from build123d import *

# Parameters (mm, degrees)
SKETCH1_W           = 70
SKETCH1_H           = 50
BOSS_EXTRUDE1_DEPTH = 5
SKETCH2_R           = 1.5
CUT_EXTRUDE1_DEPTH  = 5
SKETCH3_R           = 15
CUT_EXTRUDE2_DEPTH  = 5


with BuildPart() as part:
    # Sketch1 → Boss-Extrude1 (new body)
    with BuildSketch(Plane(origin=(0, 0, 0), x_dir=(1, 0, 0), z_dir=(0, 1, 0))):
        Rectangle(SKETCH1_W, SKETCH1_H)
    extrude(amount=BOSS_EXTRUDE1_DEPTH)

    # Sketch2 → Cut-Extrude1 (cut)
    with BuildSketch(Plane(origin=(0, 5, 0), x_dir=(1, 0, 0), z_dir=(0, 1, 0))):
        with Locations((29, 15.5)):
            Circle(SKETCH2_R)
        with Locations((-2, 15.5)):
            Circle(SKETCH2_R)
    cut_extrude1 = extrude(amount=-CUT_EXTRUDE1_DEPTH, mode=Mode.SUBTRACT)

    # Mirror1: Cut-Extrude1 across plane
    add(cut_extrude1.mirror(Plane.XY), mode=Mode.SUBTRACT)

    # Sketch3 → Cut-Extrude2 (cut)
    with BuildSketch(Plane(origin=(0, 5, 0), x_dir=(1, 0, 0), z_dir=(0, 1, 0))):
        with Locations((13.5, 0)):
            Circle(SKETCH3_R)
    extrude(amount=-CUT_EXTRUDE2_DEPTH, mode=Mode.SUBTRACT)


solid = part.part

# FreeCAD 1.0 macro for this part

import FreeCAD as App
import Part
import Sketcher
from FreeCAD import Vector
Q = App.Units.Quantity

doc = App.newDocument("Part")
body = doc.addObject("PartDesign::Body", "Body")

# Sketch on XZ plane
sketch1 = body.newObject("Sketcher::SketchObject", "Sketch")
sketch1.AttachmentSupport = (doc.getObject("XZ_Plane"), [""])
sketch1.MapMode = "FlatFace"
sketch1.addGeometry([
    Part.LineSegment(Vector(-35, -25, 0), Vector(-35, 25, 0)),
    Part.LineSegment(Vector(-35, 25, 0), Vector(35, 25, 0)),
    Part.LineSegment(Vector(35, 25, 0), Vector(35, -25, 0)),
    Part.LineSegment(Vector(35, -25, 0), Vector(-35, -25, 0)),
], False)
sketch1.addConstraint([
    Sketcher.Constraint("Coincident", 0, 2, 1, 1),
    Sketcher.Constraint("Coincident", 1, 2, 2, 1),
    Sketcher.Constraint("Coincident", 2, 2, 3, 1),
    Sketcher.Constraint("Coincident", 3, 2, 0, 1),
    Sketcher.Constraint("Vertical", 0),
    Sketcher.Constraint("Horizontal", 1),
    Sketcher.Constraint("Vertical", 2),
    Sketcher.Constraint("Horizontal", 3),
    Sketcher.Constraint("Symmetric", 0, 2, 2, 2, -1, 1),
    Sketcher.Constraint("DistanceX", 1, 1, 1, 2, Q("70 mm")),
    Sketcher.Constraint("DistanceY", 0, 1, 0, 2, Q("50 mm")),
])
pad1 = body.newObject("PartDesign::Pad", "Pad")
pad1.Profile = sketch1
pad1.Length = 5
pad1.Reversed = True

# Sketch on XZ plane
sketch2 = body.newObject("Sketcher::SketchObject", "Sketch001")
sketch2.AttachmentSupport = (doc.getObject("XZ_Plane"), [""])
sketch2.MapMode = "FlatFace"
sketch2.AttachmentOffset = App.Placement(Vector(0, 0, -5), App.Rotation())
sketch2.addGeometry([
    Part.Circle(Vector(29, -15.5, 0), Vector(0, 0, 1), 1.5),
    Part.Circle(Vector(-2, -15.5, 0), Vector(0, 0, 1), 1.5),
], False)
sketch2.addConstraint([
    Sketcher.Constraint("Equal", 0, 1),
    Sketcher.Constraint("Horizontal", 0, 3, 1, 3),
    Sketcher.Constraint("Diameter", 0, Q("3 mm")),
    Sketcher.Constraint("DistanceX", -1, 1, 0, 3, Q("29 mm")),
    Sketcher.Constraint("DistanceX", 1, 3, -1, 1, Q("2 mm")),
    Sketcher.Constraint("DistanceY", 0, 3, -1, 1, Q("15.5 mm")),
])
pocket1 = body.newObject("PartDesign::Pocket", "Pocket")
pocket1.Profile = sketch2
pocket1.Length = 5
pocket1.Reversed = True
doc.recompute()

mirrored = body.newObject("PartDesign::Mirrored", "Mirrored")
mirrored.Originals = [pocket1]
mirrored.MirrorPlane = (doc.getObject("XY_Plane"), [""])
body.Tip = mirrored

# Sketch on XZ plane
sketch3 = body.newObject("Sketcher::SketchObject", "Sketch002")
sketch3.AttachmentSupport = (doc.getObject("XZ_Plane"), [""])
sketch3.MapMode = "FlatFace"
sketch3.AttachmentOffset = App.Placement(Vector(0, 0, -5), App.Rotation())
sketch3.addGeometry(Part.Circle(Vector(14, 0, 0), Vector(0, 0, 1), 15), False)
sketch3.addConstraint([
    Sketcher.Constraint("PointOnObject", 0, 3, -1),
    Sketcher.Constraint("Diameter", 0, Q("30 mm")),
    Sketcher.Constraint("DistanceX", -1, 1, 0, 3, Q("13.5 mm")),
])
pocket2 = body.newObject("PartDesign::Pocket", "Pocket001")
pocket2.Profile = sketch3
pocket2.Length = 5
pocket2.Reversed = True

doc.recompute()
